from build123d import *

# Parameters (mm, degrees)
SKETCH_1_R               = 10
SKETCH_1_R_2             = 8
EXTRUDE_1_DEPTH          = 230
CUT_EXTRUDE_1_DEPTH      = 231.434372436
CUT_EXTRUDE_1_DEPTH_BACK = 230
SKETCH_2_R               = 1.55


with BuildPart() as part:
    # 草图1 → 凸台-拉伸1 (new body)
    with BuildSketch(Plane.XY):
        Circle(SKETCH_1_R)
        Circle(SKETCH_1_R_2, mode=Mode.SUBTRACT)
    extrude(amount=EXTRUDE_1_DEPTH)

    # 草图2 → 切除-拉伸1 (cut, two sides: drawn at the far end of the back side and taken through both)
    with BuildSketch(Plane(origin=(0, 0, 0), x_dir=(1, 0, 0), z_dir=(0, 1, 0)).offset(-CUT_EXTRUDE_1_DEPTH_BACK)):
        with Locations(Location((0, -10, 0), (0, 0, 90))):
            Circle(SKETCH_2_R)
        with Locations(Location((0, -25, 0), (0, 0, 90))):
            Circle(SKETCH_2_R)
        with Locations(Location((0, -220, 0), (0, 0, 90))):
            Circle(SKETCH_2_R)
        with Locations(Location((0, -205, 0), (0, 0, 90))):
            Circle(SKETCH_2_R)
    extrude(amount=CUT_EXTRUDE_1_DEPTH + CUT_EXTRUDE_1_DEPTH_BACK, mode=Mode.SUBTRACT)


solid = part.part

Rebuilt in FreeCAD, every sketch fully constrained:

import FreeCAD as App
import Part
import Sketcher
Q = App.Units.Quantity

doc = App.newDocument("Part")
params = doc.addObject("Spreadsheet::Sheet", "Params")
for row, (alias, value) in enumerate([
    ("sketch1_diameter", "20 mm"),
    ("sketch1_diameter2", "16 mm"),
    ("pad1_length", "230 mm"),
    ("sketch2_diameter", "3.1 mm"),
], start=1):
    params.set(f"A{row}", alias)
    params.set(f"B{row}", "=" + value)
    params.setAlias(f"B{row}", alias)

body = doc.addObject("PartDesign::Body", "Body")

# Sketch on XY plane
sketch1 = body.newObject("Sketcher::SketchObject", "Sketch")
sketch1.AttachmentSupport = (doc.getObject("XY_Plane"), [""])
sketch1.MapMode = "FlatFace"
sketch1.addGeometry([
    Part.Circle(App.Vector(0, 0, 0), App.Vector(0, 0, 1), 10),
    Part.Circle(App.Vector(0, 0, 0), App.Vector(0, 0, 1), 8),
], False)
sketch1.addConstraint([
    Sketcher.Constraint("Coincident", 0, 3, -1, 1),
    Sketcher.Constraint("Coincident", 1, 3, -1, 1),
    Sketcher.Constraint("Diameter", 0, Q("20 mm")),
    Sketcher.Constraint("Diameter", 1, Q("16 mm")),
])
sketch1.setExpression("Constraints[2]", "Params.sketch1_diameter")
sketch1.setExpression("Constraints[3]", "Params.sketch1_diameter2")
pad1 = body.newObject("PartDesign::Pad", "Pad")
pad1.Profile = sketch1
pad1.setExpression("Length", "Params.pad1_length")

# Sketch on XZ plane
sketch2 = body.newObject("Sketcher::SketchObject", "Sketch001")
sketch2.AttachmentSupport = (doc.getObject("XZ_Plane"), [""])
sketch2.MapMode = "FlatFace"
sketch2.addGeometry([
    Part.Circle(App.Vector(0, 10, 0), App.Vector(0, 0, 1), 1.55),
    Part.Circle(App.Vector(0, 25, 0), App.Vector(0, 0, 1), 1.55),
    Part.Circle(App.Vector(0, 220, 0), App.Vector(0, 0, 1), 1.55),
    Part.Circle(App.Vector(0, 205, 0), App.Vector(0, 0, 1), 1.55),
], False)
sketch2.addConstraint([
    Sketcher.Constraint("Equal", 0, 1),
    Sketcher.Constraint("Equal", 1, 2),
    Sketcher.Constraint("Equal", 2, 3),
    Sketcher.Constraint("PointOnObject", 0, 3, -2),
    Sketcher.Constraint("PointOnObject", 1, 3, -2),
    Sketcher.Constraint("PointOnObject", 2, 3, -2),
    Sketcher.Constraint("PointOnObject", 3, 3, -2),
    Sketcher.Constraint("Diameter", 0, Q("3.1 mm")),
    Sketcher.Constraint("DistanceY", -1, 1, 0, 3, Q("10 mm")),
    Sketcher.Constraint("DistanceY", -1, 1, 1, 3, Q("25 mm")),
    Sketcher.Constraint("DistanceY", -1, 1, 2, 3, Q("220 mm")),
    Sketcher.Constraint("DistanceY", -1, 1, 3, 3, Q("205 mm")),
])
sketch2.setExpression("Constraints[7]", "Params.sketch2_diameter")
pocket1 = body.newObject("PartDesign::Pocket", "Pocket")
pocket1.Profile = sketch2
pocket1.Type = "ThroughAll"
pocket1.Midplane = True

doc.recompute()
